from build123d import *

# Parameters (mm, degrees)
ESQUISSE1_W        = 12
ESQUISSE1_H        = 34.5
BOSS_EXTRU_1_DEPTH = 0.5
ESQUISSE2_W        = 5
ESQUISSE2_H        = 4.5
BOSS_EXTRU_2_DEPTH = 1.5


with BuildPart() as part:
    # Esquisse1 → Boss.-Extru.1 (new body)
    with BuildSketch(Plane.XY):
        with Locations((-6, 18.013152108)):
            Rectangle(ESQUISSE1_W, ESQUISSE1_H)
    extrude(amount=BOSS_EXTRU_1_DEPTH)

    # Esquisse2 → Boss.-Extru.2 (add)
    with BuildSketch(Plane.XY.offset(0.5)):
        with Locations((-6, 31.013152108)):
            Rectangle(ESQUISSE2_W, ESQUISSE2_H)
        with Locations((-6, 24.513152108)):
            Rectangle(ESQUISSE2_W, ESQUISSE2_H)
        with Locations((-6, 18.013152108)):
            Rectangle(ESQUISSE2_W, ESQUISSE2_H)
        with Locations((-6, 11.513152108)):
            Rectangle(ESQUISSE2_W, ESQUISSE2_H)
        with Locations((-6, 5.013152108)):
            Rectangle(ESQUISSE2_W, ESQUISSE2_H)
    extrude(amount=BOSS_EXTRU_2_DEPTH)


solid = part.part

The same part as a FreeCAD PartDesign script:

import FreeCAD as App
import Part
import Sketcher

doc = App.newDocument("Part")
body = doc.addObject("PartDesign::Body", "Body")

sketch1 = body.newObject("Sketcher::SketchObject", "Sketch")
sketch1.AttachmentSupport = (doc.getObject("XY_Plane"), [""])
sketch1.MapMode = "FlatFace"
sketch1.addGeometry([
    Part.LineSegment(App.Vector(-12, 35.263152, 0), App.Vector(-12, 0.763152, 0)),
    Part.LineSegment(App.Vector(-12, 0.763152, 0), App.Vector(0, 0.763152, 0)),
    Part.LineSegment(App.Vector(0, 0.763152, 0), App.Vector(0, 35.263152, 0)),
    Part.LineSegment(App.Vector(0, 35.263152, 0), App.Vector(-12, 35.263152, 0)),
], False)
sketch1.addConstraint([
    Sketcher.Constraint("Coincident", 0, 2, 1, 1),
    Sketcher.Constraint("Coincident", 1, 2, 2, 1),
    Sketcher.Constraint("Coincident", 2, 2, 3, 1),
    Sketcher.Constraint("Coincident", 3, 2, 0, 1),
    Sketcher.Constraint("Vertical", 0),
    Sketcher.Constraint("Horizontal", 1),
    Sketcher.Constraint("Vertical", 2),
    Sketcher.Constraint("Horizontal", 3),
    Sketcher.Constraint("PointOnObject", 1, 2, -2),
    Sketcher.Constraint("DistanceX", 1, 1, 1, 2, 12.0),
    Sketcher.Constraint("DistanceY", 0, 2, 0, 1, 34.5),
    Sketcher.Constraint("DistanceY", -1, 1, 0, 2, 0.763152),
])
pad1 = body.newObject("PartDesign::Pad", "Pad")
pad1.Profile = sketch1
pad1.Length = 0.5

sketch2 = body.newObject("Sketcher::SketchObject", "Sketch001")
sketch2.AttachmentSupport = (doc.getObject("XY_Plane"), [""])
sketch2.MapMode = "FlatFace"
sketch2.AttachmentOffset = App.Placement(App.Vector(0, 0, 0.5), App.Rotation())
sketch2.addGeometry([
    Part.LineSegment(App.Vector(-8.5, 33.263152, 0), App.Vector(-8.5, 28.763152, 0)),
    Part.LineSegment(App.Vector(-8.5, 28.763152, 0), App.Vector(-3.5, 28.763152, 0)),
    Part.LineSegment(App.Vector(-3.5, 28.763152, 0), App.Vector(-3.5, 33.263152, 0)),
    Part.LineSegment(App.Vector(-3.5, 33.263152, 0), App.Vector(-8.5, 33.263152, 0)),
    Part.LineSegment(App.Vector(-8.5, 26.763152, 0), App.Vector(-8.5, 22.263152, 0)),
    Part.LineSegment(App.Vector(-8.5, 22.263152, 0), App.Vector(-3.5, 22.263152, 0)),
    Part.LineSegment(App.Vector(-3.5, 22.263152, 0), App.Vector(-3.5, 26.763152, 0)),
    Part.LineSegment(App.Vector(-3.5, 26.763152, 0), App.Vector(-8.5, 26.763152, 0)),
    Part.LineSegment(App.Vector(-8.5, 20.263152, 0), App.Vector(-8.5, 15.763152, 0)),
    Part.LineSegment(App.Vector(-8.5, 15.763152, 0), App.Vector(-3.5, 15.763152, 0)),
    Part.LineSegment(App.Vector(-3.5, 15.763152, 0), App.Vector(-3.5, 20.263152, 0)),
    Part.LineSegment(App.Vector(-3.5, 20.263152, 0), App.Vector(-8.5, 20.263152, 0)),
    Part.LineSegment(App.Vector(-8.5, 13.763152, 0), App.Vector(-8.5, 9.263152, 0)),
    Part.LineSegment(App.Vector(-8.5, 9.263152, 0), App.Vector(-3.5, 9.263152, 0)),
    Part.LineSegment(App.Vector(-3.5, 9.263152, 0), App.Vector(-3.5, 13.763152, 0)),
    Part.LineSegment(App.Vector(-3.5, 13.763152, 0), App.Vector(-8.5, 13.763152, 0)),
    Part.LineSegment(App.Vector(-8.5, 7.263152, 0), App.Vector(-8.5, 2.763152, 0)),
    Part.LineSegment(App.Vector(-8.5, 2.763152, 0), App.Vector(-3.5, 2.763152, 0)),
    Part.LineSegment(App.Vector(-3.5, 2.763152, 0), App.Vector(-3.5, 7.263152, 0)),
    Part.LineSegment(App.Vector(-3.5, 7.263152, 0), App.Vector(-8.5, 7.263152, 0)),
], False)
sketch2.addConstraint([
    Sketcher.Constraint("Coincident", 0, 2, 1, 1),
    Sketcher.Constraint("Coincident", 1, 2, 2, 1),
    Sketcher.Constraint("Coincident", 2, 2, 3, 1),
    Sketcher.Constraint("Coincident", 3, 2, 0, 1),
    Sketcher.Constraint("Coincident", 4, 2, 5, 1),
    Sketcher.Constraint("Coincident", 5, 2, 6, 1),
    Sketcher.Constraint("Coincident", 6, 2, 7, 1),
    Sketcher.Constraint("Coincident", 7, 2, 4, 1),
    Sketcher.Constraint("Coincident", 8, 2, 9, 1),
    Sketcher.Constraint("Coincident", 9, 2, 10, 1),
    Sketcher.Constraint("Coincident", 10, 2, 11, 1),
    Sketcher.Constraint("Coincident", 11, 2, 8, 1),
    Sketcher.Constraint("Coincident", 12, 2, 13, 1),
    Sketcher.Constraint("Coincident", 13, 2, 14, 1),
    Sketcher.Constraint("Coincident", 14, 2, 15, 1),
    Sketcher.Constraint("Coincident", 15, 2, 12, 1),
    Sketcher.Constraint("Coincident", 16, 2, 17, 1),
    Sketcher.Constraint("Coincident", 17, 2, 18, 1),
    Sketcher.Constraint("Coincident", 18, 2, 19, 1),
    Sketcher.Constraint("Coincident", 19, 2, 16, 1),
    Sketcher.Constraint("Vertical", 0),
    Sketcher.Constraint("Horizontal", 1),
    Sketcher.Constraint("Vertical", 2),
    Sketcher.Constraint("Horizontal", 3),
    Sketcher.Constraint("Vertical", 4),
    Sketcher.Constraint("Horizontal", 5),
    Sketcher.Constraint("Vertical", 6),
    Sketcher.Constraint("Horizontal", 7),
    Sketcher.Constraint("Vertical", 8),
    Sketcher.Constraint("Horizontal", 9),
    Sketcher.Constraint("Vertical", 10),
    Sketcher.Constraint("Horizontal", 11),
    Sketcher.Constraint("Vertical", 12),
    Sketcher.Constraint("Horizontal", 13),
    Sketcher.Constraint("Vertical", 14),
    Sketcher.Constraint("Horizontal", 15),
    Sketcher.Constraint("Vertical", 16),
    Sketcher.Constraint("Horizontal", 17),
    Sketcher.Constraint("Vertical", 18),
    Sketcher.Constraint("Horizontal", 19),
    Sketcher.Constraint("Vertical", 3, 2, 4, 2),
    Sketcher.Constraint("Vertical", 2, 2, 5, 2),
    Sketcher.Constraint("Vertical", 7, 2, 8, 2),
    Sketcher.Constraint("Vertical", 6, 2, 9, 2),
    Sketcher.Constraint("Vertical", 11, 2, 12, 2),
    Sketcher.Constraint("Vertical", 10, 2, 13, 2),
    Sketcher.Constraint("Vertical", 15, 2, 16, 2),
    Sketcher.Constraint("Vertical", 14, 2, 17, 2),
    Sketcher.Constraint("Equal", 2, 4),
    Sketcher.Constraint("Equal", 6, 8),
    Sketcher.Constraint("Equal", 10, 12),
    Sketcher.Constraint("Equal", 14, 16),
    Sketcher.Constraint("DistanceX", 1, 1, 1, 2, 5.0),
    Sketcher.Constraint("DistanceY", 0, 2, 0, 1, 4.5),
    Sketcher.Constraint("DistanceY", 4, 2, 3, 2, 11.0),
    Sketcher.Constraint("DistanceY", 8, 2, 7, 2, 11.0),
    Sketcher.Constraint("DistanceY", 12, 2, 11, 2, 11.0),
    Sketcher.Constraint("DistanceY", 16, 2, 15, 2, 11.0),
    Sketcher.Constraint("DistanceX", 0, 2, -1, 1, 8.5),
    Sketcher.Constraint("DistanceY", -1, 1, 0, 2, 28.763152),
])
pad2 = body.newObject("PartDesign::Pad", "Pad001")
pad2.Profile = sketch2
pad2.Length = 1.5

doc.recompute()
